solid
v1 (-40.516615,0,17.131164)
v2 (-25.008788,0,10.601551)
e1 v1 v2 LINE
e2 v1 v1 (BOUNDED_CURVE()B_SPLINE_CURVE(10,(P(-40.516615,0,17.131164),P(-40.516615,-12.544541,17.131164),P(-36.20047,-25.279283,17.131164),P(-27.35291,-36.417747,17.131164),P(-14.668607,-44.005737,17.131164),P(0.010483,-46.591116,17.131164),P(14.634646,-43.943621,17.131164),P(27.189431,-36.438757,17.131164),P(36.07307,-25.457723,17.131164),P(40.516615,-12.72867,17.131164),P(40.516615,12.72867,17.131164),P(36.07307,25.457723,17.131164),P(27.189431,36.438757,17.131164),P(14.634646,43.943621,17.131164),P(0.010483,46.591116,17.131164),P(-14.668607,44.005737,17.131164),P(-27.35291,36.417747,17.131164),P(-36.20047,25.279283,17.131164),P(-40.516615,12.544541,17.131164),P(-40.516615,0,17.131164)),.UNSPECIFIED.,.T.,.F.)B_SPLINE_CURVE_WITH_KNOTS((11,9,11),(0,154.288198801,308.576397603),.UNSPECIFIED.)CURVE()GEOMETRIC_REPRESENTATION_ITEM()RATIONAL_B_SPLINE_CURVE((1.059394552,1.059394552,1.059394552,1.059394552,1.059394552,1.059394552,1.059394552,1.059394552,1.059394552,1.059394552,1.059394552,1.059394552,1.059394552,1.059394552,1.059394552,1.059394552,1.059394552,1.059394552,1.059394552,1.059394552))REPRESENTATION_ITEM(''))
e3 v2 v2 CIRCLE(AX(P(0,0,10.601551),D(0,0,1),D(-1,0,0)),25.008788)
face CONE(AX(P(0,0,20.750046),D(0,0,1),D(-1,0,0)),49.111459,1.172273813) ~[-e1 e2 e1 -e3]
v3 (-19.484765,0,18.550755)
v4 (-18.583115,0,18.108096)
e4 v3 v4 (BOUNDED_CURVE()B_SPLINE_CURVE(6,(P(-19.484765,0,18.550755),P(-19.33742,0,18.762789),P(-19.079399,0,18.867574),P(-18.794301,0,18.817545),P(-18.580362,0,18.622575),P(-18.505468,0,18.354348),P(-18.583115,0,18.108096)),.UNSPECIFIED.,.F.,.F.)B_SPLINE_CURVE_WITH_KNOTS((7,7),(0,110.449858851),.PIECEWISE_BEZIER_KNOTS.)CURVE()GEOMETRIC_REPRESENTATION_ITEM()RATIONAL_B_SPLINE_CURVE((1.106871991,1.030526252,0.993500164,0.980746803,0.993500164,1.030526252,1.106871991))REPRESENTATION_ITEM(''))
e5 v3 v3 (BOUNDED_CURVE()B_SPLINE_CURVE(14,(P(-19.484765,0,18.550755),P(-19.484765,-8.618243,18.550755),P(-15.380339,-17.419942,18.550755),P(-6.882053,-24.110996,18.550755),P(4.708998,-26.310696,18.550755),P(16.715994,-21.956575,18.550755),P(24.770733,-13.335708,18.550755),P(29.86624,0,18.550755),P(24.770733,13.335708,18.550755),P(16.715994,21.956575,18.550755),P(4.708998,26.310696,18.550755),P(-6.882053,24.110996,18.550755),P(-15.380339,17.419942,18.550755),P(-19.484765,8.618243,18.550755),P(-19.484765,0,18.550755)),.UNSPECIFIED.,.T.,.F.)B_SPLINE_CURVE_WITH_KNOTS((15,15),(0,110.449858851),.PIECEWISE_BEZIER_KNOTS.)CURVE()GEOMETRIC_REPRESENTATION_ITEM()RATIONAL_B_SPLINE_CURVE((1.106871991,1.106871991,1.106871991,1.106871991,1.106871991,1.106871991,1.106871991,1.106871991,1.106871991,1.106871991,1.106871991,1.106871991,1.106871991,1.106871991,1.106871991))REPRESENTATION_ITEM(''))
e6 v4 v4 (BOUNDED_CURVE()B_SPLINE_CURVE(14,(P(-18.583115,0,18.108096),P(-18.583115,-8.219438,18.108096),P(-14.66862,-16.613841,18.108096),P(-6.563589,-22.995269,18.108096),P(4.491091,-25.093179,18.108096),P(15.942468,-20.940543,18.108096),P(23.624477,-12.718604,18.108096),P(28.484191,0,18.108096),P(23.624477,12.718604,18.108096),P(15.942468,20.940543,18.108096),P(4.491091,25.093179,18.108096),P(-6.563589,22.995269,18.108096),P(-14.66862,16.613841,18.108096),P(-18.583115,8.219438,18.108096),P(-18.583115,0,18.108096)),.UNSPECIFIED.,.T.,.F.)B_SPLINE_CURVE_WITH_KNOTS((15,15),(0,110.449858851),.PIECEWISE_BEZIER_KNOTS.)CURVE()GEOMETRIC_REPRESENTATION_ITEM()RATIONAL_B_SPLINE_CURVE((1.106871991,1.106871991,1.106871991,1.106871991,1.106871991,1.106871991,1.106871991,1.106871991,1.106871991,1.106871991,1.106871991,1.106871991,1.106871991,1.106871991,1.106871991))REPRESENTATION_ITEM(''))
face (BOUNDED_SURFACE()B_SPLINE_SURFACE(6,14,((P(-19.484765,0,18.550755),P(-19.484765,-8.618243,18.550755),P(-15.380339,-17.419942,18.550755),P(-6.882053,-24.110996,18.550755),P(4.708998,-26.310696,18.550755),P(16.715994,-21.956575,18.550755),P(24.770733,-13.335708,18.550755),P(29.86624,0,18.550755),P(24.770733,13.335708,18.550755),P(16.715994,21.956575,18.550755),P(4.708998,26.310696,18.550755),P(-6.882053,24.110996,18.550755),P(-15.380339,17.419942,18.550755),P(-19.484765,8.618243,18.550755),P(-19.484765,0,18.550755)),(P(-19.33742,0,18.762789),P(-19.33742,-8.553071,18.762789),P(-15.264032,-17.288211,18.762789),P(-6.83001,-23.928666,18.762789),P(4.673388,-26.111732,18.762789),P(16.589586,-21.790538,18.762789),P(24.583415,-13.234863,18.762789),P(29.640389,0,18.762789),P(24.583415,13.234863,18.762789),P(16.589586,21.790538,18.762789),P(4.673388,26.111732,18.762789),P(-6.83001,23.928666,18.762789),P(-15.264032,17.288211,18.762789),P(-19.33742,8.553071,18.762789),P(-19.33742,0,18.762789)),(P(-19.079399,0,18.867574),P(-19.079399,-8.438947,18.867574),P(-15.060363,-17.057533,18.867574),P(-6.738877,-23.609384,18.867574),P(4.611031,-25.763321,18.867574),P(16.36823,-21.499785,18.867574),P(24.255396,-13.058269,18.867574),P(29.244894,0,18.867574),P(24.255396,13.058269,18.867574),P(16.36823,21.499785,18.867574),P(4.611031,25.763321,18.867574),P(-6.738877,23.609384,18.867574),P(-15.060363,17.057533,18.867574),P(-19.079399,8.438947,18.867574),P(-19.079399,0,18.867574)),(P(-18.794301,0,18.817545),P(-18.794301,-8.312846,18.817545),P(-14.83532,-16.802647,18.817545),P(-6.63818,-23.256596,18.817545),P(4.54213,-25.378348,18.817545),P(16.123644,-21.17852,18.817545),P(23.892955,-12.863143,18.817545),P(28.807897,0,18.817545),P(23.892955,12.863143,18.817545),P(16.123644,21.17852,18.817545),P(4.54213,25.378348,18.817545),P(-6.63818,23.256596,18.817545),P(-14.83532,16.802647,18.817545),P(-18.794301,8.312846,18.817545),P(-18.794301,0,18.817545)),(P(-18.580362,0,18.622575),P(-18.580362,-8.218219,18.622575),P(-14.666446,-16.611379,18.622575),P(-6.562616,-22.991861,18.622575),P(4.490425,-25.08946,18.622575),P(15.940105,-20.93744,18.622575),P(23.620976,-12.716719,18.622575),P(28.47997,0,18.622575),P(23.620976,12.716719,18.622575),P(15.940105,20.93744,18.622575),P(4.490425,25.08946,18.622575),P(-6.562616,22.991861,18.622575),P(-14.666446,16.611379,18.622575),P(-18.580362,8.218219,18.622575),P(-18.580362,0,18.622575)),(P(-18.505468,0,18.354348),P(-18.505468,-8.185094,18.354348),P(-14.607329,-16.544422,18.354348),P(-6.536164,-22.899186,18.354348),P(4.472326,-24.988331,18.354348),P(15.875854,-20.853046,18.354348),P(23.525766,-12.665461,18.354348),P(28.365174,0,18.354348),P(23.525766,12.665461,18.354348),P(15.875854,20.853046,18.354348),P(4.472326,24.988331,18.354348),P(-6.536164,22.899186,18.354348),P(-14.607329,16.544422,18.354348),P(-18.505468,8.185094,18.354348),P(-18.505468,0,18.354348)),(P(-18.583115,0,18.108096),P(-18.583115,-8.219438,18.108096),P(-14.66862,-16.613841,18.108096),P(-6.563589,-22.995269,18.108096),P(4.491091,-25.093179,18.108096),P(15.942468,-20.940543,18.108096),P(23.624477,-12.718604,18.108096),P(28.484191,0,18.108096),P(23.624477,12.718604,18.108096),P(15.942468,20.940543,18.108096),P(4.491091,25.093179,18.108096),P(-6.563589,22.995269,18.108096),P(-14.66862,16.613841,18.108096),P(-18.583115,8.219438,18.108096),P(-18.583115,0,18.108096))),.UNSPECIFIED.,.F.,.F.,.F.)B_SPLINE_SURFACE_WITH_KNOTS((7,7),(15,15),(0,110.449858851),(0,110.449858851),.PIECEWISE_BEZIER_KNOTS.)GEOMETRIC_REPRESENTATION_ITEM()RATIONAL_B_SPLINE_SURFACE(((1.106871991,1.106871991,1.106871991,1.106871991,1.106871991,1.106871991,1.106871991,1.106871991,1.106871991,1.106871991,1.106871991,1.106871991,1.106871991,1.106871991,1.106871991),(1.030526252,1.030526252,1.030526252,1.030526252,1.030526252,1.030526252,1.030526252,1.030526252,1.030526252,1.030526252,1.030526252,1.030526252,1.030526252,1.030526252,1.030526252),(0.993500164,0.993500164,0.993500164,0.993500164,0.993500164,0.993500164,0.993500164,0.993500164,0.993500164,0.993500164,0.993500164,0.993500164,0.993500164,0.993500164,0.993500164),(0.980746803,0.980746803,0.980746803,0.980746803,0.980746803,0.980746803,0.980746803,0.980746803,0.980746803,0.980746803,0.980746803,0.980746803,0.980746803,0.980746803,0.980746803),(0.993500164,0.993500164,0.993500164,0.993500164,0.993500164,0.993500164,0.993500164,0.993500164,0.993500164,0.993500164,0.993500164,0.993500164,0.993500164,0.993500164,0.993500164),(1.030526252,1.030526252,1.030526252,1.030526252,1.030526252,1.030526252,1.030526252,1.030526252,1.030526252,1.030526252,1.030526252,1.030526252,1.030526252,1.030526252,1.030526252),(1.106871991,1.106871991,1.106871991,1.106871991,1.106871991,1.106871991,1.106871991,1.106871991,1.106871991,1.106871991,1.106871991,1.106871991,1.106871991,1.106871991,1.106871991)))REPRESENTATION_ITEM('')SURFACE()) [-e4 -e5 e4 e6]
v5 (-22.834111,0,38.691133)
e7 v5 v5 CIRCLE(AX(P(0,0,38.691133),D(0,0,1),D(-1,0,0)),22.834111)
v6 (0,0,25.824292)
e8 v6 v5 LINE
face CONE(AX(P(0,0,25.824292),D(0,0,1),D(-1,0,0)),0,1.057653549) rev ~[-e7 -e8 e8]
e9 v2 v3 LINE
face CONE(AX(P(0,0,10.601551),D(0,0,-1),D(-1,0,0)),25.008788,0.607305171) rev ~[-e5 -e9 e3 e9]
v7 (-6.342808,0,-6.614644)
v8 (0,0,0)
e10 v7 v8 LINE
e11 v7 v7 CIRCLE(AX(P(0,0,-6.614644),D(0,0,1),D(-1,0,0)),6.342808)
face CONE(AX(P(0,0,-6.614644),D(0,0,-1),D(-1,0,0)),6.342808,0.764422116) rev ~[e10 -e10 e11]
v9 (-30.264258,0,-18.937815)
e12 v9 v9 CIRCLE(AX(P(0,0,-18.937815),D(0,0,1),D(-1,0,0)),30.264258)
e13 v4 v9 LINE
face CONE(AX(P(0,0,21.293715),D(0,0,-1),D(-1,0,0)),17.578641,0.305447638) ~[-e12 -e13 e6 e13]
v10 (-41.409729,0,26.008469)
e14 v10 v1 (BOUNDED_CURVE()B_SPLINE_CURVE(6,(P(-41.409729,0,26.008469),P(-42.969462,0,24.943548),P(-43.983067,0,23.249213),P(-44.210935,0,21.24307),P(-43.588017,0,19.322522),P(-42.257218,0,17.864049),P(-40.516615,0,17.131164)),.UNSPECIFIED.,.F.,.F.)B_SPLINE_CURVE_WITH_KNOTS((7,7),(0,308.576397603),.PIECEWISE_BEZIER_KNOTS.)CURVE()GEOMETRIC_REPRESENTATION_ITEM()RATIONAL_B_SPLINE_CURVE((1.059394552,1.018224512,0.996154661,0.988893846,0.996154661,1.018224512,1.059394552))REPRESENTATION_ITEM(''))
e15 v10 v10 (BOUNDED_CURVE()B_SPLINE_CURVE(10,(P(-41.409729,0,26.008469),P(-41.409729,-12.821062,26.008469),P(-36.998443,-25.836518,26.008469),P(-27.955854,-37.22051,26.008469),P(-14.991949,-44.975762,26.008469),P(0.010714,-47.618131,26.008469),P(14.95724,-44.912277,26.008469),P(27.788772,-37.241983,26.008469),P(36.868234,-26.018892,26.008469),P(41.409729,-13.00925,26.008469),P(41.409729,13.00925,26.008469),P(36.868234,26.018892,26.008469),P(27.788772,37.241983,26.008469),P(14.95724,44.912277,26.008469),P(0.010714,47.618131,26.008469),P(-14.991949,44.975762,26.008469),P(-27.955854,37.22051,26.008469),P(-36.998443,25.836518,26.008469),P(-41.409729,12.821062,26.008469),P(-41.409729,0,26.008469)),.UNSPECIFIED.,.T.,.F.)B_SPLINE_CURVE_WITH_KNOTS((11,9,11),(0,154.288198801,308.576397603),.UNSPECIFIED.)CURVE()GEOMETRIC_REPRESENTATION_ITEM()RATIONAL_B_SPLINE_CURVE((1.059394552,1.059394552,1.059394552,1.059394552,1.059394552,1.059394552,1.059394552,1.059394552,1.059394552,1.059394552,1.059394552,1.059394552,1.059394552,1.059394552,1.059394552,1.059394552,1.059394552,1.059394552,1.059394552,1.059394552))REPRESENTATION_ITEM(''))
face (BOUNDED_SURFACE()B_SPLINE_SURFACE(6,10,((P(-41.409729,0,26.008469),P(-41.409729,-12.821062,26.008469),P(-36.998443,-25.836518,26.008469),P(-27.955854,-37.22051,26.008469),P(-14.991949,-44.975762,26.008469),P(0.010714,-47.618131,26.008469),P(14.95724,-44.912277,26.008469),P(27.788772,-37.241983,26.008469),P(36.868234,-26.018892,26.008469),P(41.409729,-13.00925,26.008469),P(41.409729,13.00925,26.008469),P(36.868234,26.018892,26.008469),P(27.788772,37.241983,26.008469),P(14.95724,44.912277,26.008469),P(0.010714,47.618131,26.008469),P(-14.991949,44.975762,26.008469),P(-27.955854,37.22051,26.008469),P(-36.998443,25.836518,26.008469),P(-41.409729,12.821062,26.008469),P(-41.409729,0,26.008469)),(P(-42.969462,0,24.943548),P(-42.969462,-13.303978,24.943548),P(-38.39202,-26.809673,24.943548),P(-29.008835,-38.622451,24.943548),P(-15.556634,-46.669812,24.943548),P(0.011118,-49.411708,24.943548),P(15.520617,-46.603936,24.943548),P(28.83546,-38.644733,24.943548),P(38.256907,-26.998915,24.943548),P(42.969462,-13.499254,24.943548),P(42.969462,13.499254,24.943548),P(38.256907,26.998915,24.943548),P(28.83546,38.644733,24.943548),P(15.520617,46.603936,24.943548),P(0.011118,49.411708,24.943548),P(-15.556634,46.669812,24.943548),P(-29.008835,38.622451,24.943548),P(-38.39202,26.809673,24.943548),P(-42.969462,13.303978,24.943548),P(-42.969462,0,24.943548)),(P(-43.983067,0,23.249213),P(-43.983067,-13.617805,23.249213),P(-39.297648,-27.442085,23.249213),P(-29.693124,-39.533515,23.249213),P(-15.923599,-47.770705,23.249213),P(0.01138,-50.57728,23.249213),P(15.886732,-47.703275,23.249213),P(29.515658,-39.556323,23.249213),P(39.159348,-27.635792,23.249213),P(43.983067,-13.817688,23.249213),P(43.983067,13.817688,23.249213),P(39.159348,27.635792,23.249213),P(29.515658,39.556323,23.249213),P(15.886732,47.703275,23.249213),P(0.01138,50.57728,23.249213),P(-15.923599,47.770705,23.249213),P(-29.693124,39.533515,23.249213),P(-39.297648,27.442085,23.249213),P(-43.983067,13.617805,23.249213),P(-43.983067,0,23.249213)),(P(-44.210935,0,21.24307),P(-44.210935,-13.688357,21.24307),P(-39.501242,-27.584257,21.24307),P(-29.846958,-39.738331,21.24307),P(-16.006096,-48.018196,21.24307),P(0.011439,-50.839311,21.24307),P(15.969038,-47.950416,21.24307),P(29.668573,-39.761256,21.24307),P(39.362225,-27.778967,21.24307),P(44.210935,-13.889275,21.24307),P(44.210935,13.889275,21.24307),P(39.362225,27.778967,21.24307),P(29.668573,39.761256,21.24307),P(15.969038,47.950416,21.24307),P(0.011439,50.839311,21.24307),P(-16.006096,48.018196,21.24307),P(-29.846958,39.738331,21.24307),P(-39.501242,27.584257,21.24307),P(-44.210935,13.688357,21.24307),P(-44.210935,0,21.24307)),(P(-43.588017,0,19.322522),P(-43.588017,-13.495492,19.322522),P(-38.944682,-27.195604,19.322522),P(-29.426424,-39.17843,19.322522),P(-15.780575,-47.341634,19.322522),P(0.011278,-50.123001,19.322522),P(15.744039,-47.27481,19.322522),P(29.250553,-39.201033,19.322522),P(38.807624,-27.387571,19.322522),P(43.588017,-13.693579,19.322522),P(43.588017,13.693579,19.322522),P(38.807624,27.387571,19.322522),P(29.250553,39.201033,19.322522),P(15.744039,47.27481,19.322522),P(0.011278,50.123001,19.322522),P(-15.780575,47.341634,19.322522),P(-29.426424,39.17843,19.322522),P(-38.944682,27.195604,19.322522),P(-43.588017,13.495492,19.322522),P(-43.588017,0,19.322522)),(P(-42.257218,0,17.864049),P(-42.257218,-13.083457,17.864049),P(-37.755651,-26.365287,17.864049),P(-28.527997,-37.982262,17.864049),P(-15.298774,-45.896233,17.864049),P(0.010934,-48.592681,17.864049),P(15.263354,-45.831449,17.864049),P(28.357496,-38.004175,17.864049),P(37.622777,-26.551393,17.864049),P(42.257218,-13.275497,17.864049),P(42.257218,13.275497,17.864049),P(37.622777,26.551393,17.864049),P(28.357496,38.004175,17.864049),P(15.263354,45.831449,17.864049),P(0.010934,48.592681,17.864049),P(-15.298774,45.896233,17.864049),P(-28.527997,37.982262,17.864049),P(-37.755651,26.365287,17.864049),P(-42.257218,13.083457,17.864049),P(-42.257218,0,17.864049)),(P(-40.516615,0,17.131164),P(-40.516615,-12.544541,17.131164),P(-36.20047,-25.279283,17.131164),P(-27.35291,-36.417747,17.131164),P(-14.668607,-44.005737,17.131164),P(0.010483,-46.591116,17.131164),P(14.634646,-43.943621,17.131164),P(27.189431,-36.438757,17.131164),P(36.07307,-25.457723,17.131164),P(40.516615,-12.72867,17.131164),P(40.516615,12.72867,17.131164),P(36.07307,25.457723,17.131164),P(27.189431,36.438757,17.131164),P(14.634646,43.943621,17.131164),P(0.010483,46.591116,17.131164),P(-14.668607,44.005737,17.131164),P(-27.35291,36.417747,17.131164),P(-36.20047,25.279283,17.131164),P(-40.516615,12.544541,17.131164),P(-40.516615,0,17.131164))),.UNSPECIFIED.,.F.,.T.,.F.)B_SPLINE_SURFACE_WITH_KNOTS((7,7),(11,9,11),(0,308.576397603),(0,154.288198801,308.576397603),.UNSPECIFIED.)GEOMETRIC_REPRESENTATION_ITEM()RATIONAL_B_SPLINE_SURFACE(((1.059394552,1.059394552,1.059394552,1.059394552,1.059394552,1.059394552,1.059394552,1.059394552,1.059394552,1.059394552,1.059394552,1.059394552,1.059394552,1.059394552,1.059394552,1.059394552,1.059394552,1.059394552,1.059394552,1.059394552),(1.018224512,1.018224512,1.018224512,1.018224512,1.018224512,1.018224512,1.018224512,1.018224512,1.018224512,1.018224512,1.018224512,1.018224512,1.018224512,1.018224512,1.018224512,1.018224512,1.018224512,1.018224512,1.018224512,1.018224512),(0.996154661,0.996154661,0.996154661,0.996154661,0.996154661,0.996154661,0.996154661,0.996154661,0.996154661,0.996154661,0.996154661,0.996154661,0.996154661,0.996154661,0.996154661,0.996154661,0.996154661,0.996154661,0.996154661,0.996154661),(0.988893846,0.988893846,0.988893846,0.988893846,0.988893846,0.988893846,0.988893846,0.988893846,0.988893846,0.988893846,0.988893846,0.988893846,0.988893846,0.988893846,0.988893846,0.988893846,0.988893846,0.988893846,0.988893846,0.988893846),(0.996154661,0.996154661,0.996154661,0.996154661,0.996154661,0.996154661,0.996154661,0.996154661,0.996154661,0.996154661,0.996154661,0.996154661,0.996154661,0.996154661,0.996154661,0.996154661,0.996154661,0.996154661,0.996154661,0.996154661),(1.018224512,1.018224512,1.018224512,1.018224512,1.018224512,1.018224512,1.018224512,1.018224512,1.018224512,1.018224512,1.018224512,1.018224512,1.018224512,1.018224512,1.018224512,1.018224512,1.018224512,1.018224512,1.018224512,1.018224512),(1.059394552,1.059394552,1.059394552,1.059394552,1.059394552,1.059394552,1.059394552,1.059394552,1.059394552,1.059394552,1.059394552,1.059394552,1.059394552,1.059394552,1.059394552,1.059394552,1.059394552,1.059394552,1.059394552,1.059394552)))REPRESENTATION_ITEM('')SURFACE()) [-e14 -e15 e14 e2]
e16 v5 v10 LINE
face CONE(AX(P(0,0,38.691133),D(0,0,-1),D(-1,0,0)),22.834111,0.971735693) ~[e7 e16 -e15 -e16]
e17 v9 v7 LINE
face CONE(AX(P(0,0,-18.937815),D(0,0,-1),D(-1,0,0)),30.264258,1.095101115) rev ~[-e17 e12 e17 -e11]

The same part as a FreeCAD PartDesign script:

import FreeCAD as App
import Part
import Sketcher
Q = App.Units.Quantity


def edges_at(feature, points):
    """Names of the edges that pass closest to the given points."""
    edges = feature.Shape.Edges
    near = lambda p: min(range(len(edges)), key=lambda i: edges[i].distToShape(Part.Vertex(*p))[0])
    return sorted({f"Edge{near(p) + 1}" for p in points})


def add_polygon(sketch, points):
    """Adds a closed chain of lines whose ends are joined by coincident constraints."""
    first, n = sketch.GeometryCount, len(points)
    for a, b in zip(points, points[1:] + points[:1]):
        sketch.addGeometry(Part.LineSegment(App.Vector(*a, 0), App.Vector(*b, 0)), False)
    for i in range(n):
        sketch.addConstraint(Sketcher.Constraint("Coincident", first + i, 2, first + (i + 1) % n, 1))

doc = App.newDocument("Part")
body = doc.addObject("PartDesign::Body", "Body")

# Sketch on XZ plane
sketch1 = body.newObject("Sketcher::SketchObject", "Sketch")
sketch1.AttachmentSupport = (doc.getObject("XZ_Plane"), [""])
sketch1.MapMode = "FlatFace"
add_polygon(sketch1, [(-6, -7), (0, 0), (0, 26), (-23, 39), (-49, 21), (-25, 11), (-18, 21), (-30, -19)])  # lines 0-7
sketch1.addConstraint(Sketcher.Constraint("Vertical", 1))
sketch1.addConstraint(Sketcher.Constraint("Coincident", 0, 2, -1, 1))
sketch1.addConstraint(Sketcher.Constraint("Distance", 0, Q("0.3607999 in")))
sketch1.addConstraint(Sketcher.Constraint("DistanceY", 1, 1, 1, 2, 25.824292))
sketch1.addConstraint(Sketcher.Constraint("DistanceX", 3, 2, 6, 2, 18.847201))
sketch1.addConstraint(Sketcher.Constraint("Distance", 4, 26.152069))
sketch1.addConstraint(Sketcher.Constraint("Distance", 6, 42.184131))
sketch1.addConstraint(Sketcher.Constraint("DistanceX", 2, 2, -1, 1, 22.834111))
sketch1.addConstraint(Sketcher.Constraint("DistanceX", 3, 2, -1, 1, 49.111459))
sketch1.addConstraint(Sketcher.Constraint("DistanceY", -1, 1, 4, 2, 10.601551))
sketch1.addConstraint(Sketcher.Constraint("DistanceX", 5, 2, -1, 1, 17.578641))
sketch1.addConstraint(Sketcher.Constraint("DistanceY", 1, 2, 2, 2, 12.866841))
sketch1.addConstraint(Sketcher.Constraint("DistanceX", 3, 2, 4, 2, 24.102671))
sketch1.addConstraint(Sketcher.Constraint("DistanceY", 5, 2, 2, 2, 17.397418))
sketch1.addConstraint(Sketcher.Constraint("DistanceX", 4, 2, 7, 2, 18.66598))
revolution = body.newObject("PartDesign::Revolution", "Revolution")
revolution.Profile = sketch1
revolution.ReferenceAxis = (sketch1, ["V_Axis"])
revolution.Angle = 360
doc.recompute()

fillet = body.newObject("PartDesign::Fillet", "Fillet")
fillet.Base = (revolution, edges_at(revolution, [(49.111, 0, 20.75)]))
fillet.Radius = Q("0.2 in")
doc.recompute()

fillet2 = body.newObject("PartDesign::Fillet", "Fillet001")
fillet2.Base = (fillet, edges_at(fillet, [(17.579, 0, 21.294)]))
fillet2.Radius = Q("0.02 in")

doc.recompute()
